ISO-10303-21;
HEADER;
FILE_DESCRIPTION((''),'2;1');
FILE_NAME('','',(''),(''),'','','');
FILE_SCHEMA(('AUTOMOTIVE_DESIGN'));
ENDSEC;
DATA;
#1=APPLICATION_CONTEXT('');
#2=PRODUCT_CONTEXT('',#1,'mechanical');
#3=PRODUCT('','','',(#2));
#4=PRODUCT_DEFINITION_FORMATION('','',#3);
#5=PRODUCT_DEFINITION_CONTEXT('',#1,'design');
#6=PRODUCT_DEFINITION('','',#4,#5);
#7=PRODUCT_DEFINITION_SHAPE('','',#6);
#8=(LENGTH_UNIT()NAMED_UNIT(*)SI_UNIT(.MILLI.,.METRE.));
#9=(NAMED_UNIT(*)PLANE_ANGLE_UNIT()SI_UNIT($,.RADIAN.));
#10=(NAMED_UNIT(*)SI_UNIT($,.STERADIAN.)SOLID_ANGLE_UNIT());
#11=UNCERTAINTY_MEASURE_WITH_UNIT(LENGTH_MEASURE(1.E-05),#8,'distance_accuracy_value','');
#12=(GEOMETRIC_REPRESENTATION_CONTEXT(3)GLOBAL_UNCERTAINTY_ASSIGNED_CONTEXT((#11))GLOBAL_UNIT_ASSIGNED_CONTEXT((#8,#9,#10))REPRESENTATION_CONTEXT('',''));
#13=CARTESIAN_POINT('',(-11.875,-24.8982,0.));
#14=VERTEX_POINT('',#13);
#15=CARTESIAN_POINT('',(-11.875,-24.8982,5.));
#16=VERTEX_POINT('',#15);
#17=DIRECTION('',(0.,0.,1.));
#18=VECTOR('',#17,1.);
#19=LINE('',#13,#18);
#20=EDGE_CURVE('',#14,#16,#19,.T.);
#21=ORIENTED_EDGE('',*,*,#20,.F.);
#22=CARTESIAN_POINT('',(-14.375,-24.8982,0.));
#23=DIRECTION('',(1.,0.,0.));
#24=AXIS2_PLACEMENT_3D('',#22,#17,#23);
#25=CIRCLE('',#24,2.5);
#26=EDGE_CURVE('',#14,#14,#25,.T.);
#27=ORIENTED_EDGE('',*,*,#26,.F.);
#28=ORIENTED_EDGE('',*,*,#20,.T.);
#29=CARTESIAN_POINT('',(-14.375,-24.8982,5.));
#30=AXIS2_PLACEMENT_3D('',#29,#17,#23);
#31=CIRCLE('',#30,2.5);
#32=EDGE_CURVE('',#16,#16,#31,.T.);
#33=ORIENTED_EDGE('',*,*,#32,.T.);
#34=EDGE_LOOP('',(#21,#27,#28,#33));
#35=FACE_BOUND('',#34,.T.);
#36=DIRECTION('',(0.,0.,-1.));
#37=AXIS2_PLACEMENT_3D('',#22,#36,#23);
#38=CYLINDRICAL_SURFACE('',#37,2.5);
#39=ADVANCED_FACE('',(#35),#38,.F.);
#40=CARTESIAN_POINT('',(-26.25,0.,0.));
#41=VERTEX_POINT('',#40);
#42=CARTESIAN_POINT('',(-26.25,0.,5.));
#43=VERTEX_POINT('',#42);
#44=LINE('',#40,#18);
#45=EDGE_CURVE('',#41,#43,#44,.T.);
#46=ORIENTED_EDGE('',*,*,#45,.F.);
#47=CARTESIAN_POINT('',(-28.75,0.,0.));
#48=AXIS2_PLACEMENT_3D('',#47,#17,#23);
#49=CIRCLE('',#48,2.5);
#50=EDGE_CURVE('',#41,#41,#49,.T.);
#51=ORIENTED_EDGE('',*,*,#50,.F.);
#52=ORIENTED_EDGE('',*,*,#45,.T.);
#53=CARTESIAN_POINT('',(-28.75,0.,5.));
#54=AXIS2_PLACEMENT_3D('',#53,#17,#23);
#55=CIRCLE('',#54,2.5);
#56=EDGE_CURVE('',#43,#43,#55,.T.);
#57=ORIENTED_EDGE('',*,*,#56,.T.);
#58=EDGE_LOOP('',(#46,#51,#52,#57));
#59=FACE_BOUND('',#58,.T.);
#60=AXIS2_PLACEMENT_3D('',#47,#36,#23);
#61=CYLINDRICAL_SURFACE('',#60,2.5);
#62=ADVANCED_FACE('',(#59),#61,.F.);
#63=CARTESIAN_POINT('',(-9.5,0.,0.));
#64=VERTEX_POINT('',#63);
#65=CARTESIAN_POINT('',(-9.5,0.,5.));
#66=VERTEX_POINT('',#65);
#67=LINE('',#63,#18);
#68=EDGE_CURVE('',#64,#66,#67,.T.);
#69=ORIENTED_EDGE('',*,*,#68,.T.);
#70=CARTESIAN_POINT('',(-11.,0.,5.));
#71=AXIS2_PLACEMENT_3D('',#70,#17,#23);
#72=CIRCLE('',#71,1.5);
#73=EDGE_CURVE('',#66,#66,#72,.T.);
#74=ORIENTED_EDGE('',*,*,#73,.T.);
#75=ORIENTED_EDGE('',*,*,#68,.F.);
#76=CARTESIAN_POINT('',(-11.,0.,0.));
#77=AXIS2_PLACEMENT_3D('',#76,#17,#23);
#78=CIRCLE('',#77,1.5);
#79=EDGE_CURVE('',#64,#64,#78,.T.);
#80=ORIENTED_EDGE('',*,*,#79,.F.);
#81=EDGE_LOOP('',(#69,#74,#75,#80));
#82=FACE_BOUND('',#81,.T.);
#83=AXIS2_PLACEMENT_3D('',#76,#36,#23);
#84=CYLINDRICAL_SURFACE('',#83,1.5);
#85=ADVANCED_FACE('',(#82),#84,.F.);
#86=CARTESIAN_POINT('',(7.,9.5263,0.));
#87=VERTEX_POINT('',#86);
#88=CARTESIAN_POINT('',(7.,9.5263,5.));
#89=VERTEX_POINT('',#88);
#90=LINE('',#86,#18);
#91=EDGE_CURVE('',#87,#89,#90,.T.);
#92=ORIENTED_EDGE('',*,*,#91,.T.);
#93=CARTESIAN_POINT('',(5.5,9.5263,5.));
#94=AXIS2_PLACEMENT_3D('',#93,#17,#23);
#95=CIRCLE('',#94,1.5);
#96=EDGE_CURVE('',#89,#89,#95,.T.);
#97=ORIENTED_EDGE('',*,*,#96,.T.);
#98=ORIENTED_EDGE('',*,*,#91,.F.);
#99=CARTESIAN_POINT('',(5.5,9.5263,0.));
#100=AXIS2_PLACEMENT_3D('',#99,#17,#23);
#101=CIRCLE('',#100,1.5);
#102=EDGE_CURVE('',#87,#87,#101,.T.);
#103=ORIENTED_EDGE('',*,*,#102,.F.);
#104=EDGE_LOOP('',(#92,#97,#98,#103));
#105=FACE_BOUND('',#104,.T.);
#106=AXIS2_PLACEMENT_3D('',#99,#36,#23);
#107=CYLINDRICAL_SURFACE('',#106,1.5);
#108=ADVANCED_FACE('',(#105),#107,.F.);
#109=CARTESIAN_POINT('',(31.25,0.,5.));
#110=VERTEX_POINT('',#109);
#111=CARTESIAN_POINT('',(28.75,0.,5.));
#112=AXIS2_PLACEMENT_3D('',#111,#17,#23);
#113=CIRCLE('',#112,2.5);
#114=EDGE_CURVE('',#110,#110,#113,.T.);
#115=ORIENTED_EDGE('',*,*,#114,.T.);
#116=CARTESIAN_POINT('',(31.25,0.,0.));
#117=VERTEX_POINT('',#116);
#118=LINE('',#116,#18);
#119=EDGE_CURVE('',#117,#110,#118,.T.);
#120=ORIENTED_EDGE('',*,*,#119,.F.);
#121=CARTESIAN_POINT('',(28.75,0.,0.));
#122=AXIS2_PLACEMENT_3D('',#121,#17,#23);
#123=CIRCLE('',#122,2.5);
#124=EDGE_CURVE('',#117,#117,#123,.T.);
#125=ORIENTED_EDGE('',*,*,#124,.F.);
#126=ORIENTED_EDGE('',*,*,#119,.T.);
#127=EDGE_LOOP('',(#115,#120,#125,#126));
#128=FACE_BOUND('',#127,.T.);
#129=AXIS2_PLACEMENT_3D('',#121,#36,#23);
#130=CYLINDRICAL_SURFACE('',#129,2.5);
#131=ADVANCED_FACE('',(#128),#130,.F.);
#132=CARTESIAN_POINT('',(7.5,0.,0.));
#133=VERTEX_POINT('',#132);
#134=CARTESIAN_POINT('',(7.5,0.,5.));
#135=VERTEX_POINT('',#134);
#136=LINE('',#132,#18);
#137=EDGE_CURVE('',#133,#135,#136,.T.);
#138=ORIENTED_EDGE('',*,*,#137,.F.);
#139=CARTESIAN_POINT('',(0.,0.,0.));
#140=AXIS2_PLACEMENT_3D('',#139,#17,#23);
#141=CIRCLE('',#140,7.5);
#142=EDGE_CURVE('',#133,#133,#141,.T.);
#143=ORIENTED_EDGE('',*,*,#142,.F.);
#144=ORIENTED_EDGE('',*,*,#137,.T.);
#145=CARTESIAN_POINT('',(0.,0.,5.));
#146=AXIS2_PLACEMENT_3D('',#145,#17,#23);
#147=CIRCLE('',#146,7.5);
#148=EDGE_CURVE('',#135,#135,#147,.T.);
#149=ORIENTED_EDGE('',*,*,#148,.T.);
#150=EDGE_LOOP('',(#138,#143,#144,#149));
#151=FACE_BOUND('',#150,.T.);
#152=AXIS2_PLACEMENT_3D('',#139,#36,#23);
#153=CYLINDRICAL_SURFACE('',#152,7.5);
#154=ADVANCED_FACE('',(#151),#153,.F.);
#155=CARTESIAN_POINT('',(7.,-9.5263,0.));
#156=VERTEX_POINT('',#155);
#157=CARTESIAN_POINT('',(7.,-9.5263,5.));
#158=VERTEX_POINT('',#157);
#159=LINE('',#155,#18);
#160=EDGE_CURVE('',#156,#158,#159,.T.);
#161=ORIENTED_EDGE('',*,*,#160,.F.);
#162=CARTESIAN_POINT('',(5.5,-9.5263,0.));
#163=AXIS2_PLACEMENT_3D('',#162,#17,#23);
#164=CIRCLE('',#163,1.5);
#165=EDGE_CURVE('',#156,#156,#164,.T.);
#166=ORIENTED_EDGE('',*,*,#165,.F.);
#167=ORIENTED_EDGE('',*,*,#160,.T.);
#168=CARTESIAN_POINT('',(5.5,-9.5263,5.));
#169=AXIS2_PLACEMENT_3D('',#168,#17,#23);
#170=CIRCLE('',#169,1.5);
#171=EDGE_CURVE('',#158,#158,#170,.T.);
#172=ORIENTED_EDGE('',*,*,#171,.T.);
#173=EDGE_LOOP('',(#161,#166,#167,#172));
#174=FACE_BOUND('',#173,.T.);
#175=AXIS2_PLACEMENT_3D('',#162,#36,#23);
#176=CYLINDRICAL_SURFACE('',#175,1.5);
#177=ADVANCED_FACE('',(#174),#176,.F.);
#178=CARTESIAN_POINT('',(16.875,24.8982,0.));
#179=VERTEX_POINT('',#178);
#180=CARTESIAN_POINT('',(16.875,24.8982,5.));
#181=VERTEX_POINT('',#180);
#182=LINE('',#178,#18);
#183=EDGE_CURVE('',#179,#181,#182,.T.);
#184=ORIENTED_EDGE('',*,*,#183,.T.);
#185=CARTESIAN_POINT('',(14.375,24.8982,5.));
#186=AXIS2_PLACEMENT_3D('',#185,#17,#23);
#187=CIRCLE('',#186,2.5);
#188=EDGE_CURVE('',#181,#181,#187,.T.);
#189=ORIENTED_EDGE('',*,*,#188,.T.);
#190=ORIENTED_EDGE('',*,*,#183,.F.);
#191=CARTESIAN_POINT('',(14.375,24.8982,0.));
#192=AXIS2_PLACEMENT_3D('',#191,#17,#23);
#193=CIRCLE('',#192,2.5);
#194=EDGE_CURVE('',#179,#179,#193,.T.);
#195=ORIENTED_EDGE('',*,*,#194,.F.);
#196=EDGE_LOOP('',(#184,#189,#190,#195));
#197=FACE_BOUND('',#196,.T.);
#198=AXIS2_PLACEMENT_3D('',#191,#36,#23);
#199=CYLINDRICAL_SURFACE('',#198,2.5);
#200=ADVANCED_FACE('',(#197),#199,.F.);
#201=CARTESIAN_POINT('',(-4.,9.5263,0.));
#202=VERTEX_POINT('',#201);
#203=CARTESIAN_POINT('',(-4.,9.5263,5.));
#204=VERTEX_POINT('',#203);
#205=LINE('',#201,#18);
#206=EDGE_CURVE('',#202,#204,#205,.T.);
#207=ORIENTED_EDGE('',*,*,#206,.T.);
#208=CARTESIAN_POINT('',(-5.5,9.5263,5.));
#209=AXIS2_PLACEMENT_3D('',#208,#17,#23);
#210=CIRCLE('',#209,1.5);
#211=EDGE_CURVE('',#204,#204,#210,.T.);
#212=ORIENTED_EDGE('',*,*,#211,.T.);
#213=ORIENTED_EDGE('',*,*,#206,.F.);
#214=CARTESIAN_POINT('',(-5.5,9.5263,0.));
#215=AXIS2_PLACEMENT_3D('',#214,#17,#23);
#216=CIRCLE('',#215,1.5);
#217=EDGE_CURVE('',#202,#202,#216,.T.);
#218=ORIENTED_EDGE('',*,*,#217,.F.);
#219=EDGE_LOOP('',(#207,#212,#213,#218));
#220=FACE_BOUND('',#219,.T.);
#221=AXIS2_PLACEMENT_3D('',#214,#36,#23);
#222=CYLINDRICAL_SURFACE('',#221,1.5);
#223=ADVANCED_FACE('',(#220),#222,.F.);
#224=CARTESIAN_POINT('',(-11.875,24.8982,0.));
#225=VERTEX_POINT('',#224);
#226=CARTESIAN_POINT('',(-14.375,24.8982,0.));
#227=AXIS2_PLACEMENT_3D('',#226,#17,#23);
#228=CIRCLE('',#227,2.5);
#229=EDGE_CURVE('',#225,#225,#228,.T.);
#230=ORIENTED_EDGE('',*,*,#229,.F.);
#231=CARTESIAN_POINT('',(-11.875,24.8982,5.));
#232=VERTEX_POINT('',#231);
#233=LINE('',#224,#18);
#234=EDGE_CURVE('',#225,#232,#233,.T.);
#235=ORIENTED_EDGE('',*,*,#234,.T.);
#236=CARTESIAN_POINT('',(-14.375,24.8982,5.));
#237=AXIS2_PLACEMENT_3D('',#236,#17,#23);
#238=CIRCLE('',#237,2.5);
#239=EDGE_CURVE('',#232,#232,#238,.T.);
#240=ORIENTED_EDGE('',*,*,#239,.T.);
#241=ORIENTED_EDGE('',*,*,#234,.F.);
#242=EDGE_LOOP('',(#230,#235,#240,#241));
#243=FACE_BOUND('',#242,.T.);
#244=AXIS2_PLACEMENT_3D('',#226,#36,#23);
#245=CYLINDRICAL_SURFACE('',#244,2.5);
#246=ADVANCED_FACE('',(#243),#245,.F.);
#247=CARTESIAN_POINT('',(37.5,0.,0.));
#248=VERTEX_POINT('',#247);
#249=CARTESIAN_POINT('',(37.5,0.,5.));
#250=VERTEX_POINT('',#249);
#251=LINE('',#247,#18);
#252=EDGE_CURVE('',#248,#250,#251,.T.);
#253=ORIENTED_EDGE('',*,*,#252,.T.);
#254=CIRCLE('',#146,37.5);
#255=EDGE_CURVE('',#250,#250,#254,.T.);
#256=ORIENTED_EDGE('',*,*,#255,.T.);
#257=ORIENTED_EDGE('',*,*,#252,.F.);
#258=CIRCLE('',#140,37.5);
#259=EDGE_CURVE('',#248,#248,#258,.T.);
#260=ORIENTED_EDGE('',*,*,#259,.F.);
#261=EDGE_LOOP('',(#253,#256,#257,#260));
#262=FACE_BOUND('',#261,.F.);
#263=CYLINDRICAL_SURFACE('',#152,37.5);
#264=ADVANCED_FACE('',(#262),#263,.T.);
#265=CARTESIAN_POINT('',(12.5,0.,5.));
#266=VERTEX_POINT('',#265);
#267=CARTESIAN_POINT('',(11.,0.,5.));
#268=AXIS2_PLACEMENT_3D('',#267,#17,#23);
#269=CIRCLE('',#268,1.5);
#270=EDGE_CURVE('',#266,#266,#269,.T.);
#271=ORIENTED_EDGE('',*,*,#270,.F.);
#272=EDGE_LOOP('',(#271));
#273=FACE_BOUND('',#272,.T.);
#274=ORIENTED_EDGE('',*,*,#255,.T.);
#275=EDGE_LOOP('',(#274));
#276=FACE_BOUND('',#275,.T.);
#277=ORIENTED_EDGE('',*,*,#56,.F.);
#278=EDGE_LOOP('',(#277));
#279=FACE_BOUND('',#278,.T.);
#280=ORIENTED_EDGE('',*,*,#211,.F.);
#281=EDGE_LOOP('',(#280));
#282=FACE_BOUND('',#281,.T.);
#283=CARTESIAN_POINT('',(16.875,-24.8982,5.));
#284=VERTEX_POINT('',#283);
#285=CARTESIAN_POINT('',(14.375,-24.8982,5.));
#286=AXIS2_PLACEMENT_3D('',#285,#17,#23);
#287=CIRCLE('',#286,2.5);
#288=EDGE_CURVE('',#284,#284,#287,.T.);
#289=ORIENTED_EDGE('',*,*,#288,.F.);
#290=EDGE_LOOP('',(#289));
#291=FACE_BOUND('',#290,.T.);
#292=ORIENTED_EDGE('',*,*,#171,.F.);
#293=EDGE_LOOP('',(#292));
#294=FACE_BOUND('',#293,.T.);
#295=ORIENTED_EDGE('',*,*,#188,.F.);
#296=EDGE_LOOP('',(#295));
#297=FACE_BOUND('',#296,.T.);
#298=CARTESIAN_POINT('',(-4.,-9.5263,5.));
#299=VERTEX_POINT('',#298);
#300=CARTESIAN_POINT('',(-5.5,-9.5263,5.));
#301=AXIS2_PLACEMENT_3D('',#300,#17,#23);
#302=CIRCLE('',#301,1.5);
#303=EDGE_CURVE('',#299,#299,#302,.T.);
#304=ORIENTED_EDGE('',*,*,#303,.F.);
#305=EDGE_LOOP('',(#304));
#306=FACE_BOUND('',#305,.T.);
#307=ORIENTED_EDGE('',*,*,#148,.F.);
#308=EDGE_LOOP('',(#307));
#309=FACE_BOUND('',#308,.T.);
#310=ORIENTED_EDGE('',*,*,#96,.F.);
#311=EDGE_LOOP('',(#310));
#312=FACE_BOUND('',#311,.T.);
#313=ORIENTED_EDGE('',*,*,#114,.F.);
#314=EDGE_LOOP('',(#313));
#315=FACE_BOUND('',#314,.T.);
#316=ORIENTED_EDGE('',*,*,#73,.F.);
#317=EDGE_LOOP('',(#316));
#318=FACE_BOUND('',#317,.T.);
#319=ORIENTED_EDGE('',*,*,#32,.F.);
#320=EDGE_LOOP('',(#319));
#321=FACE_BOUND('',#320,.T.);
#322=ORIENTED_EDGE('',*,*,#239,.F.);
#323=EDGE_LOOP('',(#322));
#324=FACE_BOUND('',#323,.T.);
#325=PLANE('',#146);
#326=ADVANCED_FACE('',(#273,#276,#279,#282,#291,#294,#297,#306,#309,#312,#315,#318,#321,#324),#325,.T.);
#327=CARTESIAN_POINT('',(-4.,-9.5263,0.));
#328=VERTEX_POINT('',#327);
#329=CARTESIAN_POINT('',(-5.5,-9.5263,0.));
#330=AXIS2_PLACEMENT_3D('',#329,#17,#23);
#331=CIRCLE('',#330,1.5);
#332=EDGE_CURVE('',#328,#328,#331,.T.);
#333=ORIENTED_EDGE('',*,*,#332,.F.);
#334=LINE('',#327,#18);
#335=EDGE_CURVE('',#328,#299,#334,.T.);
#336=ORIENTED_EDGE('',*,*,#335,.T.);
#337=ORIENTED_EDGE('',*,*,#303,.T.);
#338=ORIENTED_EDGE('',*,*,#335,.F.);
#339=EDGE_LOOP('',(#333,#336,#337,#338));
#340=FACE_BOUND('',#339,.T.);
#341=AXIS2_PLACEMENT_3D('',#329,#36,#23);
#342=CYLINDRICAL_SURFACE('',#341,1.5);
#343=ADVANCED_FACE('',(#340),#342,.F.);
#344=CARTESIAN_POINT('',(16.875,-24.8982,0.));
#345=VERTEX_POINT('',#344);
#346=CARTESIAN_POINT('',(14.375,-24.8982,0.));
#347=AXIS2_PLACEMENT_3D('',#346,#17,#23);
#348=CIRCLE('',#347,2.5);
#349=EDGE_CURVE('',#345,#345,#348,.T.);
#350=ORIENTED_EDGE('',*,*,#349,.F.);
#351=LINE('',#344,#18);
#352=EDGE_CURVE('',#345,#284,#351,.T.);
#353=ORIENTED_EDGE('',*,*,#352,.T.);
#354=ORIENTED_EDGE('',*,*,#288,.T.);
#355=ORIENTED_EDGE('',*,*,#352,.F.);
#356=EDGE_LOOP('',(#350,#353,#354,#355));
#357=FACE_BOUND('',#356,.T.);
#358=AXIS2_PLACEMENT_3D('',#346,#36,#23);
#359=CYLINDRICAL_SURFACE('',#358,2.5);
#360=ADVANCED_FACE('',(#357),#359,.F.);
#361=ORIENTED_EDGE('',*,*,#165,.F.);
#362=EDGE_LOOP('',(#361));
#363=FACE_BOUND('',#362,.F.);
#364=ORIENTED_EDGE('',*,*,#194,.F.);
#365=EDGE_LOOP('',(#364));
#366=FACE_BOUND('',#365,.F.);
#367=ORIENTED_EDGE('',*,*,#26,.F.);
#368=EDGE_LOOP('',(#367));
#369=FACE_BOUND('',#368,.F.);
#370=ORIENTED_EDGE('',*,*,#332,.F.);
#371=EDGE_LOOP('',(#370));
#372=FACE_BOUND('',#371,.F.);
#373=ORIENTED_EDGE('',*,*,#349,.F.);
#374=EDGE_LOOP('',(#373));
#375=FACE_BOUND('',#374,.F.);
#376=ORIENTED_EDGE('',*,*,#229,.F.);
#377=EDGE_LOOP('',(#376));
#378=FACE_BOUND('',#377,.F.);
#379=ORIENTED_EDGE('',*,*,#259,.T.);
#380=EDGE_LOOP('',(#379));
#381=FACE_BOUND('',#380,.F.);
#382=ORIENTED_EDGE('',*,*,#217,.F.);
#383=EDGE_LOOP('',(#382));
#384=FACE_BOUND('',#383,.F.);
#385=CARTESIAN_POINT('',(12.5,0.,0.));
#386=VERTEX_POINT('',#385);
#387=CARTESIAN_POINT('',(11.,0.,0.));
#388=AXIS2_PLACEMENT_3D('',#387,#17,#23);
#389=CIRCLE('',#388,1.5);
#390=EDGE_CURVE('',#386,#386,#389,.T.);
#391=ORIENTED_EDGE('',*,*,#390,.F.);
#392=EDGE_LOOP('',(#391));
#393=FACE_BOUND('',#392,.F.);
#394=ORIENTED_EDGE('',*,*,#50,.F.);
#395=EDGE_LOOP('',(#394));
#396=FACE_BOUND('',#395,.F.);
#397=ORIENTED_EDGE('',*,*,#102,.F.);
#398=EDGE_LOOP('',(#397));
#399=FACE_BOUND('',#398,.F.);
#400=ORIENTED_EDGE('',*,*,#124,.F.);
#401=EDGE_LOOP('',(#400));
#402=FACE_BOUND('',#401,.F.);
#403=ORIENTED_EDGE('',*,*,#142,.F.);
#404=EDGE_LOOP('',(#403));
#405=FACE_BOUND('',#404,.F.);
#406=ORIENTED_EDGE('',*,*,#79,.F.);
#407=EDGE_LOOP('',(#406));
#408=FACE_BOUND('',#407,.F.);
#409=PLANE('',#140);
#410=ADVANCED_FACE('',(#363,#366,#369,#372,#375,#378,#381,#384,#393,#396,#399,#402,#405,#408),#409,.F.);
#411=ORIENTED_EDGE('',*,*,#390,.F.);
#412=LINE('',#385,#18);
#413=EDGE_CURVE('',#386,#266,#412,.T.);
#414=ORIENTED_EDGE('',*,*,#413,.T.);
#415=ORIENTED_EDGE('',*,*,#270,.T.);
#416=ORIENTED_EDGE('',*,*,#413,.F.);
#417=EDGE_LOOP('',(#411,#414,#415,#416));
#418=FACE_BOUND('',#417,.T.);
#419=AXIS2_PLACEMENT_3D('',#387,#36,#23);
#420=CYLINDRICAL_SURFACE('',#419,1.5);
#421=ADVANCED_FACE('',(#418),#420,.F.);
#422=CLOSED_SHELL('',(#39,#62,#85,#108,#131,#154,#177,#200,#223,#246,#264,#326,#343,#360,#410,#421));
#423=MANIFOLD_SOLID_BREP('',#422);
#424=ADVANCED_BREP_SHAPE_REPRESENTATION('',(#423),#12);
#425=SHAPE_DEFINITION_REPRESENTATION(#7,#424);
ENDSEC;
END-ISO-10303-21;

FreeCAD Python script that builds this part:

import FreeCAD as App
import Part
import Sketcher

V = App.Vector
Q = App.Units.Quantity

doc = App.newDocument("Part")
body = doc.addObject("PartDesign::Body", "Body")

sketch1 = doc.addObject("Sketcher::SketchObject", "Sketch")
body.addObject(sketch1)
sketch1.AttachmentSupport = (doc.XY_Plane, [""])
sketch1.MapMode = "FlatFace"
sketch1.addGeometry([
    Part.Circle(V(0, 0, 0), V(0, 0, 1), 37.5),
    Part.Circle(V(-14.4, -24.9, 0), V(0, 0, 1), 2.5),
    Part.Circle(V(-5.5, -9.5, 0), V(0, 0, 1), 1.5),
    Part.Circle(V(14.4, -24.9, 0), V(0, 0, 1), 2.5),
    Part.Circle(V(5.5, -9.5, 0), V(0, 0, 1), 1.5),
    Part.Circle(V(-28.8, 0, 0), V(0, 0, 1), 2.5),
    Part.Circle(V(-11, 0, 0), V(0, 0, 1), 1.5),
    Part.Circle(V(-5.5, 9.5, 0), V(0, 0, 1), 1.5),
    Part.Circle(V(-14.4, 24.9, 0), V(0, 0, 1), 2.5),
    Part.Circle(V(0, 0, 0), V(0, 0, 1), 7.5),
    Part.Circle(V(11, 0, 0), V(0, 0, 1), 1.5),
    Part.Circle(V(5.5, 9.5, 0), V(0, 0, 1), 1.5),
    Part.Circle(V(28.8, 0, 0), V(0, 0, 1), 2.5),
    Part.Circle(V(14.4, 24.9, 0), V(0, 0, 1), 2.5),
], False)
sketch1.addConstraint([
    Sketcher.Constraint("Coincident", 0, 3, -1, 1),
    Sketcher.Constraint("Coincident", 9, 3, -1, 1),
    Sketcher.Constraint("Equal", 1, 3),
    Sketcher.Constraint("Equal", 2, 4),
    Sketcher.Constraint("Equal", 3, 5),
    Sketcher.Constraint("Equal", 4, 6),
    Sketcher.Constraint("Equal", 6, 7),
    Sketcher.Constraint("Equal", 5, 8),
    Sketcher.Constraint("Equal", 7, 10),
    Sketcher.Constraint("Equal", 10, 11),
    Sketcher.Constraint("Equal", 8, 12),
    Sketcher.Constraint("Equal", 12, 13),
    Sketcher.Constraint("Symmetric", 4, 3, 7, 3, -1, 1),
    Sketcher.Constraint("Symmetric", 3, 3, 8, 3, -1, 1),
    Sketcher.Constraint("Symmetric", 6, 3, 10, 3, -1, 1),
    Sketcher.Constraint("Symmetric", 2, 3, 11, 3, -1, 1),
    Sketcher.Constraint("Symmetric", 5, 3, 12, 3, -1, 1),
    Sketcher.Constraint("Symmetric", 1, 3, 13, 3, -1, 1),
    Sketcher.Constraint("Symmetric", 1, 3, 3, 3, -2),
    Sketcher.Constraint("Symmetric", 2, 3, 4, 3, -2),
    Sketcher.Constraint("PointOnObject", 5, 3, -1),
    Sketcher.Constraint("PointOnObject", 6, 3, -1),
    Sketcher.Constraint("Diameter", 0, Q("75 mm")),
    Sketcher.Constraint("Diameter", 1, Q("5 mm")),
    Sketcher.Constraint("Diameter", 2, Q("3 mm")),
    Sketcher.Constraint("Diameter", 9, Q("15 mm")),
    Sketcher.Constraint("DistanceX", 6, 3, -1, 1, Q("11 mm")),
    Sketcher.Constraint("DistanceX", 2, 3, 4, 3, Q("11 mm")),
    Sketcher.Constraint("DistanceX", 5, 3, -1, 1, Q("28.75 mm")),
    Sketcher.Constraint("DistanceX", 1, 3, 3, 3, Q("28.75 mm")),
    Sketcher.Constraint("DistanceY", 1, 3, 2, 3, Q("15.372 mm")),
    Sketcher.Constraint("DistanceY", 1, 3, -1, 1, Q("24.8982 mm")),
])
pad1 = doc.addObject("PartDesign::Pad", "Pad")
body.addObject(pad1)
pad1.Profile = sketch1
pad1.Length = 5

doc.recompute()
